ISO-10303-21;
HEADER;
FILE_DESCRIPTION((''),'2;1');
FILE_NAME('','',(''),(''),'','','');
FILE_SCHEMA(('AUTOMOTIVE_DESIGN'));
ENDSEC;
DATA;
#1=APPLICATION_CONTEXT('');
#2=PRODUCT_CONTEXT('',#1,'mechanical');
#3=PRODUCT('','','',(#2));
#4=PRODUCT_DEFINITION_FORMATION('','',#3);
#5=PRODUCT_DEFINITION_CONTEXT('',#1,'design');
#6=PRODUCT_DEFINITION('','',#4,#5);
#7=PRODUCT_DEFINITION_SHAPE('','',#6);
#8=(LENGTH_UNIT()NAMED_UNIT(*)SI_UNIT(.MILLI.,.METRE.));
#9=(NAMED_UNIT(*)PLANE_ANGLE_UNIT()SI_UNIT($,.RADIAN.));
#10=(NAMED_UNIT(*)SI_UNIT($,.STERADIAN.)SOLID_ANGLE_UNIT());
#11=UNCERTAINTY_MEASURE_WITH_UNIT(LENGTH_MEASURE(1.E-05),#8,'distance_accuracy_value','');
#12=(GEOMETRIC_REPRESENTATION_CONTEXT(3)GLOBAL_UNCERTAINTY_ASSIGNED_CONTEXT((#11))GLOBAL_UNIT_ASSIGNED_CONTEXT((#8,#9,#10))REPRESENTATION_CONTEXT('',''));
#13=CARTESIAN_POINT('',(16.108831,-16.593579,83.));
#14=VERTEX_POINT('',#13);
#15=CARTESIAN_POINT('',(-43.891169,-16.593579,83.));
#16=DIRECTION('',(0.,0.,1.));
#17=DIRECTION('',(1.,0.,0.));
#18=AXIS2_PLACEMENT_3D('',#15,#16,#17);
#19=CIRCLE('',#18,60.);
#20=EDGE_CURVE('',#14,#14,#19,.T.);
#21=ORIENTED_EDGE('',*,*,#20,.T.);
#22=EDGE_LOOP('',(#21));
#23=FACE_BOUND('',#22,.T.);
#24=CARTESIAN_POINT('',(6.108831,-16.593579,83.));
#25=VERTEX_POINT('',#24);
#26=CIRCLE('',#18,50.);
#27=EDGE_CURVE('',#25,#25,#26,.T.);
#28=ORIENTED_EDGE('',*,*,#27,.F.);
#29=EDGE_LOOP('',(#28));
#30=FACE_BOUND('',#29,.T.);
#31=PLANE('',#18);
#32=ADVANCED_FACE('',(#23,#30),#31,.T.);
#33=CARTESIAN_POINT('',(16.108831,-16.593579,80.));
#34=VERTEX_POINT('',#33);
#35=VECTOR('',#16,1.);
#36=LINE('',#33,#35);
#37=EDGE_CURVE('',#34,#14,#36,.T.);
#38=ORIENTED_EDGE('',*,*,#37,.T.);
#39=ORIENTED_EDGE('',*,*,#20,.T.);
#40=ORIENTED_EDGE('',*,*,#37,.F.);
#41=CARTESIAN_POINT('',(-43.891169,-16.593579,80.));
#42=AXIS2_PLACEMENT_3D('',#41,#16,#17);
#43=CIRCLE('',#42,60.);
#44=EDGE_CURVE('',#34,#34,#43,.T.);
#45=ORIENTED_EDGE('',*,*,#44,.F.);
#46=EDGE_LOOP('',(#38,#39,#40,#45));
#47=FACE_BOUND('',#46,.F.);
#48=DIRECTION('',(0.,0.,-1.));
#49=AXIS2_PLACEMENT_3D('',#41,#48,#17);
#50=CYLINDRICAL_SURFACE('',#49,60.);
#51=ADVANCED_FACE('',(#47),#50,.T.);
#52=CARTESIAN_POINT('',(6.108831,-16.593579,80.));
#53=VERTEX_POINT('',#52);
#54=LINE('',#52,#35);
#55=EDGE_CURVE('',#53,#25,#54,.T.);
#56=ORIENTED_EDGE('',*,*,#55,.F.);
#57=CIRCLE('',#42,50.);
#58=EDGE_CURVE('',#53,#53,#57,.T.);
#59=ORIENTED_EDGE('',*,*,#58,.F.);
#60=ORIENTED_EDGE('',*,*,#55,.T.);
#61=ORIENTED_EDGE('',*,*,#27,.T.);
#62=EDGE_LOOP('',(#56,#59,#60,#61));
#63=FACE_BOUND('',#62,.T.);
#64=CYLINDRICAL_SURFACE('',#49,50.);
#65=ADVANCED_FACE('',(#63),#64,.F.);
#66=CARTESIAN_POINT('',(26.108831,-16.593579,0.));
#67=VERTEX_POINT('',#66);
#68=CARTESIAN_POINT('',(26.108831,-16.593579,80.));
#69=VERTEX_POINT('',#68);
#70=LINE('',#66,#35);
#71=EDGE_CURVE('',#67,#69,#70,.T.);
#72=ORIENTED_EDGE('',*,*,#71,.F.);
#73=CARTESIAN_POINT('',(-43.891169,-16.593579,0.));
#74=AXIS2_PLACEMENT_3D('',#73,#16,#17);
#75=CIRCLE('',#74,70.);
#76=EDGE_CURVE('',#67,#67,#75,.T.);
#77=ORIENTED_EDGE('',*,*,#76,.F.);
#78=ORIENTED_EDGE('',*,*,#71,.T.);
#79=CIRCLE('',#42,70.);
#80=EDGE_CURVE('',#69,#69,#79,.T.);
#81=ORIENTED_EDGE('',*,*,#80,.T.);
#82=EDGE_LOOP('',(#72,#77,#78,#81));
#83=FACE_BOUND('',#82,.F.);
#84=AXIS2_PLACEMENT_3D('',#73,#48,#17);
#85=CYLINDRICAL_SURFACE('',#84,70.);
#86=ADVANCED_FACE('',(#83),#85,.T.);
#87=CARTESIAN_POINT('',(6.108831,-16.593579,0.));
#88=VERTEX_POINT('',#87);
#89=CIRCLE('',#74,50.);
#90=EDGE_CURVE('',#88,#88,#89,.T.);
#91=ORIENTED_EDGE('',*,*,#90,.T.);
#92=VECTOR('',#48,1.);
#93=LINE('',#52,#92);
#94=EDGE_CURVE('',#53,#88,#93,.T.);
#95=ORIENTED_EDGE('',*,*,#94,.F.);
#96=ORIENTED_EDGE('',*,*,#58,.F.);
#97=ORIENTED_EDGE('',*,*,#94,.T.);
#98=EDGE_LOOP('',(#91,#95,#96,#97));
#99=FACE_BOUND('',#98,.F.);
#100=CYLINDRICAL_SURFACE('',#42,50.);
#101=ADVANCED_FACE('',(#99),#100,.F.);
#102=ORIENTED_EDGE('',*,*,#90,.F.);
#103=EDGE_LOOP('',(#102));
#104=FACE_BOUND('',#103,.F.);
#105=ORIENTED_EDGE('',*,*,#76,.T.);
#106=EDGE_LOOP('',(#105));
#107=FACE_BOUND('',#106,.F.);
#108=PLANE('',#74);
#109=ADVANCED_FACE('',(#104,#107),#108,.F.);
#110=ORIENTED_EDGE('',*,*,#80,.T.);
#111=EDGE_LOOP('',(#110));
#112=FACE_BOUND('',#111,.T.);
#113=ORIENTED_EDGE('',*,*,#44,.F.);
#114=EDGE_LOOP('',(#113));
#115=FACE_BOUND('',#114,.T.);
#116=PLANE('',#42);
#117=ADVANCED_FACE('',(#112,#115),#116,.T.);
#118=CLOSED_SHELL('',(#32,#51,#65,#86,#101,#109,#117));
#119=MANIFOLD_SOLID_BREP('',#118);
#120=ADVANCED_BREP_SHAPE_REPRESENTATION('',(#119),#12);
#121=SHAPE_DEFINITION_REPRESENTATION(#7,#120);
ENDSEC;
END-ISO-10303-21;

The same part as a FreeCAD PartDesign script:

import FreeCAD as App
import Part
import Sketcher

V = App.Vector

doc = App.newDocument("Part")
body = doc.addObject("PartDesign::Body", "Body")

# Sketch on XY plane
sketch1 = body.newObject("Sketcher::SketchObject", "Sketch")
sketch1.AttachmentSupport = (doc.getObject("XY_Plane"), [""])
sketch1.MapMode = "FlatFace"
sketch1.addGeometry(Part.Circle(V(-44, -17, 0), V(0, 0, 1), 70), False)
sketch1.addConstraint([
    Sketcher.Constraint("Diameter", 0, 140.0),
    Sketcher.Constraint("DistanceX", 0, 3, -1, 1, 43.891169),
    Sketcher.Constraint("DistanceY", 0, 3, -1, 1, 16.593579),
])
pad1 = body.newObject("PartDesign::Pad", "Pad")
pad1.Profile = sketch1
pad1.Length = 80

# Sketch on XY plane
sketch2 = body.newObject("Sketcher::SketchObject", "Sketch001")
sketch2.AttachmentSupport = (doc.getObject("XY_Plane"), [""])
sketch2.MapMode = "FlatFace"
sketch2.AttachmentOffset = App.Placement(V(0, 0, 80), App.Rotation())
sketch2.addGeometry(Part.Circle(V(-44, -17, 0), V(0, 0, 1), 50), False)
sketch2.addConstraint([
    Sketcher.Constraint("Diameter", 0, 100.0),
    Sketcher.Constraint("DistanceX", 0, 3, -1, 1, 43.891169),
    Sketcher.Constraint("DistanceY", 0, 3, -1, 1, 16.593579),
])
pocket1 = body.newObject("PartDesign::Pocket", "Pocket")
pocket1.Profile = sketch2
pocket1.Length = 100

# Sketch on XY plane
sketch3 = body.newObject("Sketcher::SketchObject", "Sketch002")
sketch3.AttachmentSupport = (doc.getObject("XY_Plane"), [""])
sketch3.MapMode = "FlatFace"
sketch3.AttachmentOffset = App.Placement(V(0, 0, 80), App.Rotation())
sketch3.addGeometry([
    Part.Circle(V(-44, -17, 0), V(0, 0, 1), 60),
    Part.Circle(V(-44, -17, 0), V(0, 0, 1), 50),
], False)
sketch3.addConstraint([
    Sketcher.Constraint("Coincident", 1, 3, 0, 3),
    Sketcher.Constraint("Diameter", 0, 120.0),
    Sketcher.Constraint("Diameter", 1, 100.0),
    Sketcher.Constraint("DistanceX", 0, 3, -1, 1, 43.891169),
    Sketcher.Constraint("DistanceY", 0, 3, -1, 1, 16.593579),
])
pad2 = body.newObject("PartDesign::Pad", "Pad001")
pad2.Profile = sketch3
pad2.Length = 3

doc.recompute()
